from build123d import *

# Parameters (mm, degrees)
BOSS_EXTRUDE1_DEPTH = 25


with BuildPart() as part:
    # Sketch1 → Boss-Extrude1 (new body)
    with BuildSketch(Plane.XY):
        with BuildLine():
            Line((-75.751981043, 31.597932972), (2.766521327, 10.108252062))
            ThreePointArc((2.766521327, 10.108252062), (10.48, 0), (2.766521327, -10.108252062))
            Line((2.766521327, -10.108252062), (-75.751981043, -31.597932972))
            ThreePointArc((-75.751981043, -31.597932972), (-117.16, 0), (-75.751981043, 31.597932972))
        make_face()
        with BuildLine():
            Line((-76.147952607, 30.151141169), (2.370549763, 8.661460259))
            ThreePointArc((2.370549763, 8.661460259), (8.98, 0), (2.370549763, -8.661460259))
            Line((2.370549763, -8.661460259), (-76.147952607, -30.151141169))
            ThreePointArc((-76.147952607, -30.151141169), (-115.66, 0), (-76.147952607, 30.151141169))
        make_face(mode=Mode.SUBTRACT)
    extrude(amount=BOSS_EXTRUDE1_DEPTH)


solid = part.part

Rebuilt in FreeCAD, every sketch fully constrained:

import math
import FreeCAD as App
import Part
import Sketcher
Q = App.Units.Quantity

doc = App.newDocument("Part")
body = doc.addObject("PartDesign::Body", "Body")

# Sketch on XY plane
sketch1 = body.newObject("Sketcher::SketchObject", "Sketch")
sketch1.AttachmentSupport = (doc.getObject("XY_Plane"), [""])
sketch1.MapMode = "FlatFace"
sketch1.addGeometry([
    Part.LineSegment(App.Vector(3, 10, 0), App.Vector(-76, 32, 0)),  # 0
    Part.ArcOfCircle(Part.Circle(App.Vector(-84, 0, 0), App.Vector(0, 0, 1), 33), math.radians(75), math.radians(285)),  # 1
    Part.LineSegment(App.Vector(-76, -32, 0), App.Vector(3, -10, 0)),  # 2
    Part.ArcOfCircle(Part.Circle(App.Vector(0, 0, 0), App.Vector(0, 0, 1), 10), math.radians(-75), math.radians(75)),  # 3
    Part.LineSegment(App.Vector(-76, 30, 0), App.Vector(2, 9, 0)),  # 4
    Part.ArcOfCircle(Part.Circle(App.Vector(0, 0, 0), App.Vector(0, 0, 1), 9), math.radians(-75), math.radians(75)),  # 5
    Part.LineSegment(App.Vector(2, -9, 0), App.Vector(-76, -30, 0)),  # 6
    Part.ArcOfCircle(Part.Circle(App.Vector(-84, 0, 0), App.Vector(0, 0, 1), 31), math.radians(75), math.radians(285)),  # 7
], False)
sketch1.addConstraint([
    Sketcher.Constraint("Tangent", 0, 2, 1, 1),
    Sketcher.Constraint("Tangent", 1, 2, 2, 1),
    Sketcher.Constraint("Tangent", 2, 2, 3, 1),
    Sketcher.Constraint("Tangent", 3, 2, 0, 1),
    Sketcher.Constraint("Tangent", 4, 2, 5, 2),
    Sketcher.Constraint("Tangent", 5, 1, 6, 1),
    Sketcher.Constraint("Tangent", 6, 2, 7, 2),
    Sketcher.Constraint("Tangent", 7, 1, 4, 1),
    Sketcher.Constraint("Coincident", 3, 3, -1, 1),
    Sketcher.Constraint("Coincident", 5, 3, -1, 1),
    Sketcher.Constraint("Coincident", 7, 3, 1, 3),
    Sketcher.Constraint("PointOnObject", 1, 3, -1),
    Sketcher.Constraint("Parallel", 0, 4),
    Sketcher.Constraint("Radius", 1, Q("32.76 mm")),
    Sketcher.Constraint("Radius", 3, Q("10.48 mm")),
    Sketcher.Constraint("Radius", 5, Q("8.98 mm")),
    Sketcher.Constraint("DistanceX", 1, 3, -1, 1, Q("84.4 mm")),
])
pad1 = body.newObject("PartDesign::Pad", "Pad")
pad1.Profile = sketch1
pad1.Length = 25

doc.recompute()
